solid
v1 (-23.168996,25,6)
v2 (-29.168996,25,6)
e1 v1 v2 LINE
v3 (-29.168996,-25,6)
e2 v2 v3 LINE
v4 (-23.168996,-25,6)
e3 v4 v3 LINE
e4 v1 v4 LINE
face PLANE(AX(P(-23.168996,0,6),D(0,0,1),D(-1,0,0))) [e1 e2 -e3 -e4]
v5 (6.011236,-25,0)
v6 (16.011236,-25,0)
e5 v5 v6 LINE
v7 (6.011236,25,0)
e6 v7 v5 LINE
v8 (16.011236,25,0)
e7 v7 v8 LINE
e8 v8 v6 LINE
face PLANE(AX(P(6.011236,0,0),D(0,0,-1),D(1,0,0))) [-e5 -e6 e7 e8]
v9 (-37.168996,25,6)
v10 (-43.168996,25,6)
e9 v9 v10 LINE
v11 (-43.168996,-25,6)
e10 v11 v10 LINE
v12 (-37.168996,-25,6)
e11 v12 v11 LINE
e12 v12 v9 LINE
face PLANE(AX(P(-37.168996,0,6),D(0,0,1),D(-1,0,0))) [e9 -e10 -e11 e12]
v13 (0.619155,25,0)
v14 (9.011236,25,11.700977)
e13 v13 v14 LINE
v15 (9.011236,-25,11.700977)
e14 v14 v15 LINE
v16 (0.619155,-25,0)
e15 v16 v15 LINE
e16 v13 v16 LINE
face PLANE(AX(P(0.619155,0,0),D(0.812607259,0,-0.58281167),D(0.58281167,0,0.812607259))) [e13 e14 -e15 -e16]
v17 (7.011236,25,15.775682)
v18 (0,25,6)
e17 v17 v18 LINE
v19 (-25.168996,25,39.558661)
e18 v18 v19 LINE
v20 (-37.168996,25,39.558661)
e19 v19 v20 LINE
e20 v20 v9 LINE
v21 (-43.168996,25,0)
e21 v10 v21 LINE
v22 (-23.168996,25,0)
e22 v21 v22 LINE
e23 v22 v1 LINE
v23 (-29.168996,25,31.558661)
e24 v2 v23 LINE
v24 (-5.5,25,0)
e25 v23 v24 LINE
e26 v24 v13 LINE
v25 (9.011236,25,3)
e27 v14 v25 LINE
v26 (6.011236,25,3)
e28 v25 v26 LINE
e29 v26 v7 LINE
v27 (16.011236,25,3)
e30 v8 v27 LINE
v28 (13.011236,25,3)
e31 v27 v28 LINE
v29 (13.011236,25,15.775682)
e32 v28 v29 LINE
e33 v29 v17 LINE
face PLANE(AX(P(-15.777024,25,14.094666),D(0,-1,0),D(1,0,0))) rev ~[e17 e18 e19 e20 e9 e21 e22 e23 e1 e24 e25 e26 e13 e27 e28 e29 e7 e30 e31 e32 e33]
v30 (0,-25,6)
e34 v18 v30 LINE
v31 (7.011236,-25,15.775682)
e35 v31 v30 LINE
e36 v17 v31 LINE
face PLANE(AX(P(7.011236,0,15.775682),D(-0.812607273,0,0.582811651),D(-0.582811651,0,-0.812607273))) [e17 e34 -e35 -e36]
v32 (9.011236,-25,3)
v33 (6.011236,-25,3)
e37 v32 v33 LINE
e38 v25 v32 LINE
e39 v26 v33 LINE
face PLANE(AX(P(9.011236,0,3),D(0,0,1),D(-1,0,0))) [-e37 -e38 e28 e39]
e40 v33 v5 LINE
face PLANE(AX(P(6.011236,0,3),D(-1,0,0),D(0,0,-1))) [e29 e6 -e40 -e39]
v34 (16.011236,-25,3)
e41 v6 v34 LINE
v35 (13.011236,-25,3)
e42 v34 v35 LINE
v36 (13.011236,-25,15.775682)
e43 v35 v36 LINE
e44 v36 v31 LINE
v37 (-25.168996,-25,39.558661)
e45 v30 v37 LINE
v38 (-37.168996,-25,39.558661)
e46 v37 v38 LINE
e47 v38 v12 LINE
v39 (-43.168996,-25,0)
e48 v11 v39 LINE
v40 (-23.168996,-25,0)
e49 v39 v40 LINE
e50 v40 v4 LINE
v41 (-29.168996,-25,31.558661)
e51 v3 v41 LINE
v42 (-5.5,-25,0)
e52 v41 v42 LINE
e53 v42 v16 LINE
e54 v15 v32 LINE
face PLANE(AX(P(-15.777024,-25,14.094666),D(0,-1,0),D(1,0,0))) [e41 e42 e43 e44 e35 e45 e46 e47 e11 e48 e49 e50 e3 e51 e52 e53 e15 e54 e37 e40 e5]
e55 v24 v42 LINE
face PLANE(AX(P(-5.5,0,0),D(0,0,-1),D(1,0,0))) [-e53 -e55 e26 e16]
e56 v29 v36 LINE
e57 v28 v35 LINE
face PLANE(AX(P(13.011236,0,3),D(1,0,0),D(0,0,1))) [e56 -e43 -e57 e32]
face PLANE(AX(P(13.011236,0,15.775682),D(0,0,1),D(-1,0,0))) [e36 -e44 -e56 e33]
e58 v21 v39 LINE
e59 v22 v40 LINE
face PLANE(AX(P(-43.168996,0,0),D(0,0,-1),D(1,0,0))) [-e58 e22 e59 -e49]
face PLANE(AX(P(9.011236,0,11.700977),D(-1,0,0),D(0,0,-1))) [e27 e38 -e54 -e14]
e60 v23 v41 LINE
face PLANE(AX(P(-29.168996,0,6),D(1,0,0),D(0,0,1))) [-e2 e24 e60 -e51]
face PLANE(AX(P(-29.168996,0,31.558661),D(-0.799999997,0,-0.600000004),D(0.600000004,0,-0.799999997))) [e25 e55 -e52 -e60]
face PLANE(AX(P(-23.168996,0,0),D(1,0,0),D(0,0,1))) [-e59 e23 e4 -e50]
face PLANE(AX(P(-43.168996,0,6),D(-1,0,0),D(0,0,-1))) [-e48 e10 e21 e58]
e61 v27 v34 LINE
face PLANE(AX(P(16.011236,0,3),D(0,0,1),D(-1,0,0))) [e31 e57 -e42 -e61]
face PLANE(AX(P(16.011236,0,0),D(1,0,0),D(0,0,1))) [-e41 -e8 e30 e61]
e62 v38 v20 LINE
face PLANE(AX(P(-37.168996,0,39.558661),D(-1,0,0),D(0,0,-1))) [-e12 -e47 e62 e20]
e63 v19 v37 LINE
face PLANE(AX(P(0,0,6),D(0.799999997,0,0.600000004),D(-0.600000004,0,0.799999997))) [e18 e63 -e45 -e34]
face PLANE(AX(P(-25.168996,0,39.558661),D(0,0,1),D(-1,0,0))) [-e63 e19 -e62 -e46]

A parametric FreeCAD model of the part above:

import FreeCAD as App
import Part
import Sketcher

V = App.Vector

doc = App.newDocument("Part")
body = doc.addObject("PartDesign::Body", "Body")

sketch1 = body.newObject("Sketcher::SketchObject", "Sketch")
sketch1.AttachmentSupport = (doc.getObject("XZ_Plane"), [""])
sketch1.MapMode = "FlatFace"
sketch1.addGeometry(Part.LineSegment(V(-43.168996, 6, 0), V(-43.168996, 0, 0)), False)
sketch1.addGeometry(Part.LineSegment(V(-43.168996, 0, 0), V(-23.168996, 0, 0)), False)
sketch1.addGeometry(Part.LineSegment(V(-23.168996, 0, 0), V(-23.168996, 6, 0)), False)
sketch1.addGeometry(Part.LineSegment(V(-23.168996, 6, 0), V(-29.168996, 6, 0)), False)
sketch1.addGeometry(Part.LineSegment(V(-29.168996, 6, 0), V(-29.168996, 31.558661, 0)), False)
sketch1.addGeometry(Part.LineSegment(V(-29.168996, 31.558661, 0), V(-5.5, 0, 0)), False)
sketch1.addGeometry(Part.LineSegment(V(-5.5, 0, 0), V(0.619155, 0, 0)), False)
sketch1.addGeometry(Part.LineSegment(V(0.619155, 0, 0), V(9.011236, 11.700977, 0)), False)
sketch1.addGeometry(Part.LineSegment(V(9.011236, 11.700977, 0), V(9.011236, 3, 0)), False)
sketch1.addGeometry(Part.LineSegment(V(9.011236, 3, 0), V(6.011236, 3, 0)), False)
sketch1.addGeometry(Part.LineSegment(V(6.011236, 3, 0), V(6.011236, 0, 0)), False)
sketch1.addGeometry(Part.LineSegment(V(6.011236, 0, 0), V(16.011236, 0, 0)), False)
sketch1.addGeometry(Part.LineSegment(V(16.011236, 0, 0), V(16.011236, 3, 0)), False)
sketch1.addGeometry(Part.LineSegment(V(16.011236, 3, 0), V(13.011236, 3, 0)), False)
sketch1.addGeometry(Part.LineSegment(V(13.011236, 3, 0), V(13.011236, 15.775682, 0)), False)
sketch1.addGeometry(Part.LineSegment(V(13.011236, 15.775682, 0), V(7.011236, 15.775682, 0)), False)
sketch1.addGeometry(Part.LineSegment(V(7.011236, 15.775682, 0), V(0, 6, 0)), False)
sketch1.addGeometry(Part.LineSegment(V(0, 6, 0), V(-25.168996, 39.558661, 0)), False)
sketch1.addGeometry(Part.LineSegment(V(-25.168996, 39.558661, 0), V(-37.168996, 39.558661, 0)), False)
sketch1.addGeometry(Part.LineSegment(V(-37.168996, 39.558661, 0), V(-37.168996, 6, 0)), False)
sketch1.addGeometry(Part.LineSegment(V(-37.168996, 6, 0), V(-43.168996, 6, 0)), False)
sketch1.addConstraint(Sketcher.Constraint("Coincident", 0, 2, 1, 1))
sketch1.addConstraint(Sketcher.Constraint("Coincident", 1, 2, 2, 1))
sketch1.addConstraint(Sketcher.Constraint("Coincident", 2, 2, 3, 1))
sketch1.addConstraint(Sketcher.Constraint("Coincident", 3, 2, 4, 1))
sketch1.addConstraint(Sketcher.Constraint("Coincident", 4, 2, 5, 1))
sketch1.addConstraint(Sketcher.Constraint("Coincident", 5, 2, 6, 1))
sketch1.addConstraint(Sketcher.Constraint("Coincident", 6, 2, 7, 1))
sketch1.addConstraint(Sketcher.Constraint("Coincident", 7, 2, 8, 1))
sketch1.addConstraint(Sketcher.Constraint("Coincident", 8, 2, 9, 1))
sketch1.addConstraint(Sketcher.Constraint("Coincident", 9, 2, 10, 1))
sketch1.addConstraint(Sketcher.Constraint("Coincident", 10, 2, 11, 1))
sketch1.addConstraint(Sketcher.Constraint("Coincident", 11, 2, 12, 1))
sketch1.addConstraint(Sketcher.Constraint("Coincident", 12, 2, 13, 1))
sketch1.addConstraint(Sketcher.Constraint("Coincident", 13, 2, 14, 1))
sketch1.addConstraint(Sketcher.Constraint("Coincident", 14, 2, 15, 1))
sketch1.addConstraint(Sketcher.Constraint("Coincident", 15, 2, 16, 1))
sketch1.addConstraint(Sketcher.Constraint("Coincident", 16, 2, 17, 1))
sketch1.addConstraint(Sketcher.Constraint("Coincident", 17, 2, 18, 1))
sketch1.addConstraint(Sketcher.Constraint("Coincident", 18, 2, 19, 1))
sketch1.addConstraint(Sketcher.Constraint("Coincident", 19, 2, 20, 1))
sketch1.addConstraint(Sketcher.Constraint("Coincident", 20, 2, 0, 1))
sketch1.addConstraint(Sketcher.Constraint("Vertical", 0))
sketch1.addConstraint(Sketcher.Constraint("Horizontal", 1))
sketch1.addConstraint(Sketcher.Constraint("Vertical", 2))
sketch1.addConstraint(Sketcher.Constraint("Horizontal", 3))
sketch1.addConstraint(Sketcher.Constraint("Vertical", 4))
sketch1.addConstraint(Sketcher.Constraint("Horizontal", 6))
sketch1.addConstraint(Sketcher.Constraint("Vertical", 8))
sketch1.addConstraint(Sketcher.Constraint("Horizontal", 9))
sketch1.addConstraint(Sketcher.Constraint("Vertical", 10))
sketch1.addConstraint(Sketcher.Constraint("Horizontal", 11))
sketch1.addConstraint(Sketcher.Constraint("Vertical", 12))
sketch1.addConstraint(Sketcher.Constraint("Horizontal", 13))
sketch1.addConstraint(Sketcher.Constraint("Vertical", 14))
sketch1.addConstraint(Sketcher.Constraint("Horizontal", 15))
sketch1.addConstraint(Sketcher.Constraint("Horizontal", 18))
sketch1.addConstraint(Sketcher.Constraint("Vertical", 19))
sketch1.addConstraint(Sketcher.Constraint("Horizontal", 20))
sketch1.addConstraint(Sketcher.Constraint("PointOnObject", 0, 2, -1))
sketch1.addConstraint(Sketcher.Constraint("PointOnObject", 5, 2, -1))
sketch1.addConstraint(Sketcher.Constraint("PointOnObject", 10, 2, -1))
sketch1.addConstraint(Sketcher.Constraint("PointOnObject", 16, 2, -2))
sketch1.addConstraint(Sketcher.Constraint("Parallel", 7, 16))
sketch1.addConstraint(Sketcher.Constraint("Parallel", 5, 17))
sketch1.addConstraint(Sketcher.Constraint("Horizontal", 9, 2, 12, 2))
sketch1.addConstraint(Sketcher.Constraint("Horizontal", 3, 2, 16, 2))
sketch1.addConstraint(Sketcher.Constraint("Horizontal", 16, 2, 19, 2))
sketch1.addConstraint(Sketcher.Constraint("Equal", 9, 13))
sketch1.addConstraint(Sketcher.Constraint("Equal", 3, 15))
sketch1.addConstraint(Sketcher.Constraint("Equal", 15, 20))
sketch1.addConstraint(Sketcher.Constraint("Equal", 20, 0))
sketch1.addConstraint(Sketcher.Constraint("Equal", 13, 10))
sketch1.addConstraint(Sketcher.Constraint("DistanceX", 1, 1, 1, 2, 20.0))
sketch1.addConstraint(Sketcher.Constraint("DistanceX", 3, 2, 3, 1, 6.0))
sketch1.addConstraint(Sketcher.Constraint("DistanceX", 9, 2, 9, 1, 3.0))
sketch1.addConstraint(Sketcher.Constraint("DistanceX", 11, 1, 11, 2, 10.0))
sketch1.addConstraint(Sketcher.Constraint("DistanceX", 18, 2, 18, 1, 12.0))
sketch1.addConstraint(Sketcher.Constraint("DistanceY", 4, 2, 17, 2, 8.0))
sketch1.addConstraint(Sketcher.Constraint("DistanceX", 5, 2, -1, 1, 5.5))
sketch1.addConstraint(Sketcher.Constraint("Distance", 7, 14.399302))
sketch1.addConstraint(Sketcher.Constraint("DistanceY", 4, 1, 4, 2, 25.558661))
sketch1.addConstraint(Sketcher.Constraint("Distance", 16, 12.03002))
sketch1.addConstraint(Sketcher.Constraint("DistanceX", 6, 1, 6, 2, 6.119155))
pad1 = body.newObject("PartDesign::Pad", "Pad")
pad1.Profile = sketch1
pad1.Length = 50
pad1.Midplane = True

doc.recompute()
